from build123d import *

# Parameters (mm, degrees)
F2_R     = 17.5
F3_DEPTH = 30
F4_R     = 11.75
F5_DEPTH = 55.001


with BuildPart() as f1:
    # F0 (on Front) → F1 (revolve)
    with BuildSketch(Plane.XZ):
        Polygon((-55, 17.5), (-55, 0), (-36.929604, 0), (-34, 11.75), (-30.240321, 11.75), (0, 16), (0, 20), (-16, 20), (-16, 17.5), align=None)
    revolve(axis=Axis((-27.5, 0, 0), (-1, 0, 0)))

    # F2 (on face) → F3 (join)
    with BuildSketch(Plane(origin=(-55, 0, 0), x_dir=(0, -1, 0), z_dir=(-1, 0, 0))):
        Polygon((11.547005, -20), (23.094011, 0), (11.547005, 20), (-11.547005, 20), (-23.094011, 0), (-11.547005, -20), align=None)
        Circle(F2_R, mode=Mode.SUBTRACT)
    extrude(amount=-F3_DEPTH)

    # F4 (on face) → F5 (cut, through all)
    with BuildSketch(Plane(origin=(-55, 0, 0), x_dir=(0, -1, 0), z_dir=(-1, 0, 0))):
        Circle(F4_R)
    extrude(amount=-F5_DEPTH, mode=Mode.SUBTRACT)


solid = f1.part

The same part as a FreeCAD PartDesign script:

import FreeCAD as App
import Part
import Sketcher

V = App.Vector
Q = App.Units.Quantity

doc = App.newDocument("Part")
params = doc.addObject("Spreadsheet::Sheet", "Params")
for row, (alias, value) in enumerate([
    ("sketch1_width", "16 mm"),
    ("sketch1_width2", "39 mm"),
    ("sketch1_height", "4 mm"),
    ("sketch1_height2", "17.5 mm"),
    ("sketch1_height3", "2.5 mm"),
    ("revolution_angle", "360 deg"),
    ("sketch2_diameter", "35 mm"),
    ("pad1_length", "30 mm"),
    ("sketch3_diameter", "23.5 mm"),
], start=1):
    params.set(f"A{row}", alias)
    params.set(f"B{row}", "=" + value)
    params.setAlias(f"B{row}", alias)

body = doc.addObject("PartDesign::Body", "Body")

# Sketch on XZ plane
sketch1 = body.newObject("Sketcher::SketchObject", "Sketch")
sketch1.AttachmentSupport = (doc.getObject("XZ_Plane"), [""])
sketch1.MapMode = "FlatFace"
sketch1.addGeometry(Part.LineSegment(V(-55, 17.5, 0), V(-55, 0, 0)), False)
sketch1.addGeometry(Part.LineSegment(V(-55, 0, 0), V(-36.9, 0, 0)), False)
sketch1.addGeometry(Part.LineSegment(V(-36.9, 0, 0), V(-34, 11.8, 0)), False)
sketch1.addGeometry(Part.LineSegment(V(-34, 11.8, 0), V(-30.2, 11.8, 0)), False)
sketch1.addGeometry(Part.LineSegment(V(-30.2, 11.8, 0), V(0, 16, 0)), False)
sketch1.addGeometry(Part.LineSegment(V(0, 16, 0), V(0, 20, 0)), False)
sketch1.addGeometry(Part.LineSegment(V(0, 20, 0), V(-16, 20, 0)), False)
sketch1.addGeometry(Part.LineSegment(V(-16, 20, 0), V(-16, 17.5, 0)), False)
sketch1.addGeometry(Part.LineSegment(V(-16, 17.5, 0), V(-55, 17.5, 0)), False)
sketch1.addConstraint(Sketcher.Constraint("Coincident", 0, 2, 1, 1))
sketch1.addConstraint(Sketcher.Constraint("Coincident", 1, 2, 2, 1))
sketch1.addConstraint(Sketcher.Constraint("Coincident", 2, 2, 3, 1))
sketch1.addConstraint(Sketcher.Constraint("Coincident", 3, 2, 4, 1))
sketch1.addConstraint(Sketcher.Constraint("Coincident", 4, 2, 5, 1))
sketch1.addConstraint(Sketcher.Constraint("Coincident", 5, 2, 6, 1))
sketch1.addConstraint(Sketcher.Constraint("Coincident", 6, 2, 7, 1))
sketch1.addConstraint(Sketcher.Constraint("Coincident", 7, 2, 8, 1))
sketch1.addConstraint(Sketcher.Constraint("Coincident", 8, 2, 0, 1))
sketch1.addConstraint(Sketcher.Constraint("Vertical", 0))
sketch1.addConstraint(Sketcher.Constraint("Horizontal", 1))
sketch1.addConstraint(Sketcher.Constraint("Horizontal", 3))
sketch1.addConstraint(Sketcher.Constraint("Vertical", 5))
sketch1.addConstraint(Sketcher.Constraint("Horizontal", 6))
sketch1.addConstraint(Sketcher.Constraint("Vertical", 7))
sketch1.addConstraint(Sketcher.Constraint("Horizontal", 8))
sketch1.addConstraint(Sketcher.Constraint("PointOnObject", 0, 2, -1))
sketch1.addConstraint(Sketcher.Constraint("PointOnObject", 4, 2, -2))
sketch1.addConstraint(Sketcher.Constraint("DistanceX", 6, 2, 6, 1, Q("16 mm")))
sketch1.addConstraint(Sketcher.Constraint("DistanceX", 8, 2, 8, 1, Q("39 mm")))
sketch1.addConstraint(Sketcher.Constraint("DistanceY", 5, 1, 5, 2, Q("4 mm")))
sketch1.addConstraint(Sketcher.Constraint("Angle", 2, Q("76 deg")))
sketch1.addConstraint(Sketcher.Constraint("Angle", 4, Q("8 deg")))
sketch1.addConstraint(Sketcher.Constraint("DistanceY", 0, 2, 0, 1, Q("17.5 mm")))
sketch1.addConstraint(Sketcher.Constraint("DistanceY", 7, 2, 7, 1, Q("2.5 mm")))
sketch1.addConstraint(Sketcher.Constraint("DistanceX", 2, 2, -1, 1, Q("34 mm")))
sketch1.addConstraint(Sketcher.Constraint("DistanceY", -1, 1, 2, 2, Q("11.75 mm")))
sketch1.setExpression("Constraints[18]", "Params.sketch1_width")
sketch1.setExpression("Constraints[19]", "Params.sketch1_width2")
sketch1.setExpression("Constraints[20]", "Params.sketch1_height")
sketch1.setExpression("Constraints[23]", "Params.sketch1_height2")
sketch1.setExpression("Constraints[24]", "Params.sketch1_height3")
revolution = body.newObject("PartDesign::Revolution", "Revolution")
revolution.Profile = sketch1
revolution.ReferenceAxis = (sketch1, ["H_Axis"])
revolution.setExpression("Angle", "Params.revolution_angle")

# Sketch on YZ plane
sketch2 = body.newObject("Sketcher::SketchObject", "Sketch001")
sketch2.AttachmentSupport = (doc.getObject("YZ_Plane"), [""])
sketch2.MapMode = "FlatFace"
sketch2.AttachmentOffset = App.Placement(V(0, 0, -55), App.Rotation())
sketch2.addGeometry(Part.LineSegment(V(-12, -20, 0), V(-23, 0, 0)), False)
sketch2.addGeometry(Part.LineSegment(V(-23, 0, 0), V(-12, 20, 0)), False)
sketch2.addGeometry(Part.LineSegment(V(-12, 20, 0), V(12, 20, 0)), False)
sketch2.addGeometry(Part.LineSegment(V(12, 20, 0), V(23, 0, 0)), False)
sketch2.addGeometry(Part.LineSegment(V(23, 0, 0), V(12, -20, 0)), False)
sketch2.addGeometry(Part.LineSegment(V(12, -20, 0), V(-12, -20, 0)), False)
sketch2.addGeometry(Part.Circle(V(0, 0, 0), V(0, 0, 1), 18), False)
sketch2.addConstraint(Sketcher.Constraint("Coincident", 0, 2, 1, 1))
sketch2.addConstraint(Sketcher.Constraint("Coincident", 1, 2, 2, 1))
sketch2.addConstraint(Sketcher.Constraint("Coincident", 2, 2, 3, 1))
sketch2.addConstraint(Sketcher.Constraint("Coincident", 3, 2, 4, 1))
sketch2.addConstraint(Sketcher.Constraint("Coincident", 4, 2, 5, 1))
sketch2.addConstraint(Sketcher.Constraint("Coincident", 5, 2, 0, 1))
sketch2.addConstraint(Sketcher.Constraint("Horizontal", 2))
sketch2.addConstraint(Sketcher.Constraint("Horizontal", 5))
sketch2.addConstraint(Sketcher.Constraint("Coincident", 6, 3, -1, 1))
sketch2.addConstraint(Sketcher.Constraint("Symmetric", 0, 2, 3, 2, -1, 1))
sketch2.addConstraint(Sketcher.Constraint("Symmetric", 1, 2, 4, 2, -1, 1))
sketch2.addConstraint(Sketcher.Constraint("PointOnObject", 0, 2, -1))
sketch2.addConstraint(Sketcher.Constraint("Parallel", 0, 3))
sketch2.addConstraint(Sketcher.Constraint("Vertical", 2, 2, 4, 2))
sketch2.addConstraint(Sketcher.Constraint("Diameter", 6, Q("35 mm")))
sketch2.addConstraint(Sketcher.Constraint("Angle", 0, Q("120.000001 deg")))
sketch2.addConstraint(Sketcher.Constraint("DistanceY", -1, 1, 1, 2, Q("20 mm")))
sketch2.addConstraint(Sketcher.Constraint("DistanceX", 2, 1, 2, 2, Q("23.09401 mm")))
sketch2.setExpression("Constraints[14]", "Params.sketch2_diameter")
pad1 = body.newObject("PartDesign::Pad", "Pad")
pad1.Profile = sketch2
pad1.setExpression("Length", "Params.pad1_length")

# Sketch on YZ plane
sketch3 = body.newObject("Sketcher::SketchObject", "Sketch002")
sketch3.AttachmentSupport = (doc.getObject("YZ_Plane"), [""])
sketch3.MapMode = "FlatFace"
sketch3.AttachmentOffset = App.Placement(V(0, 0, -55), App.Rotation())
sketch3.addGeometry(Part.Circle(V(0, 0, 0), V(0, 0, 1), 12), False)
sketch3.addConstraint(Sketcher.Constraint("Coincident", 0, 3, -1, 1))
sketch3.addConstraint(Sketcher.Constraint("Diameter", 0, Q("23.5 mm")))
sketch3.setExpression("Constraints[1]", "Params.sketch3_diameter")
pocket1 = body.newObject("PartDesign::Pocket", "Pocket")
pocket1.Profile = sketch3
pocket1.Type = "ThroughAll"
pocket1.Reversed = True

doc.recompute()
